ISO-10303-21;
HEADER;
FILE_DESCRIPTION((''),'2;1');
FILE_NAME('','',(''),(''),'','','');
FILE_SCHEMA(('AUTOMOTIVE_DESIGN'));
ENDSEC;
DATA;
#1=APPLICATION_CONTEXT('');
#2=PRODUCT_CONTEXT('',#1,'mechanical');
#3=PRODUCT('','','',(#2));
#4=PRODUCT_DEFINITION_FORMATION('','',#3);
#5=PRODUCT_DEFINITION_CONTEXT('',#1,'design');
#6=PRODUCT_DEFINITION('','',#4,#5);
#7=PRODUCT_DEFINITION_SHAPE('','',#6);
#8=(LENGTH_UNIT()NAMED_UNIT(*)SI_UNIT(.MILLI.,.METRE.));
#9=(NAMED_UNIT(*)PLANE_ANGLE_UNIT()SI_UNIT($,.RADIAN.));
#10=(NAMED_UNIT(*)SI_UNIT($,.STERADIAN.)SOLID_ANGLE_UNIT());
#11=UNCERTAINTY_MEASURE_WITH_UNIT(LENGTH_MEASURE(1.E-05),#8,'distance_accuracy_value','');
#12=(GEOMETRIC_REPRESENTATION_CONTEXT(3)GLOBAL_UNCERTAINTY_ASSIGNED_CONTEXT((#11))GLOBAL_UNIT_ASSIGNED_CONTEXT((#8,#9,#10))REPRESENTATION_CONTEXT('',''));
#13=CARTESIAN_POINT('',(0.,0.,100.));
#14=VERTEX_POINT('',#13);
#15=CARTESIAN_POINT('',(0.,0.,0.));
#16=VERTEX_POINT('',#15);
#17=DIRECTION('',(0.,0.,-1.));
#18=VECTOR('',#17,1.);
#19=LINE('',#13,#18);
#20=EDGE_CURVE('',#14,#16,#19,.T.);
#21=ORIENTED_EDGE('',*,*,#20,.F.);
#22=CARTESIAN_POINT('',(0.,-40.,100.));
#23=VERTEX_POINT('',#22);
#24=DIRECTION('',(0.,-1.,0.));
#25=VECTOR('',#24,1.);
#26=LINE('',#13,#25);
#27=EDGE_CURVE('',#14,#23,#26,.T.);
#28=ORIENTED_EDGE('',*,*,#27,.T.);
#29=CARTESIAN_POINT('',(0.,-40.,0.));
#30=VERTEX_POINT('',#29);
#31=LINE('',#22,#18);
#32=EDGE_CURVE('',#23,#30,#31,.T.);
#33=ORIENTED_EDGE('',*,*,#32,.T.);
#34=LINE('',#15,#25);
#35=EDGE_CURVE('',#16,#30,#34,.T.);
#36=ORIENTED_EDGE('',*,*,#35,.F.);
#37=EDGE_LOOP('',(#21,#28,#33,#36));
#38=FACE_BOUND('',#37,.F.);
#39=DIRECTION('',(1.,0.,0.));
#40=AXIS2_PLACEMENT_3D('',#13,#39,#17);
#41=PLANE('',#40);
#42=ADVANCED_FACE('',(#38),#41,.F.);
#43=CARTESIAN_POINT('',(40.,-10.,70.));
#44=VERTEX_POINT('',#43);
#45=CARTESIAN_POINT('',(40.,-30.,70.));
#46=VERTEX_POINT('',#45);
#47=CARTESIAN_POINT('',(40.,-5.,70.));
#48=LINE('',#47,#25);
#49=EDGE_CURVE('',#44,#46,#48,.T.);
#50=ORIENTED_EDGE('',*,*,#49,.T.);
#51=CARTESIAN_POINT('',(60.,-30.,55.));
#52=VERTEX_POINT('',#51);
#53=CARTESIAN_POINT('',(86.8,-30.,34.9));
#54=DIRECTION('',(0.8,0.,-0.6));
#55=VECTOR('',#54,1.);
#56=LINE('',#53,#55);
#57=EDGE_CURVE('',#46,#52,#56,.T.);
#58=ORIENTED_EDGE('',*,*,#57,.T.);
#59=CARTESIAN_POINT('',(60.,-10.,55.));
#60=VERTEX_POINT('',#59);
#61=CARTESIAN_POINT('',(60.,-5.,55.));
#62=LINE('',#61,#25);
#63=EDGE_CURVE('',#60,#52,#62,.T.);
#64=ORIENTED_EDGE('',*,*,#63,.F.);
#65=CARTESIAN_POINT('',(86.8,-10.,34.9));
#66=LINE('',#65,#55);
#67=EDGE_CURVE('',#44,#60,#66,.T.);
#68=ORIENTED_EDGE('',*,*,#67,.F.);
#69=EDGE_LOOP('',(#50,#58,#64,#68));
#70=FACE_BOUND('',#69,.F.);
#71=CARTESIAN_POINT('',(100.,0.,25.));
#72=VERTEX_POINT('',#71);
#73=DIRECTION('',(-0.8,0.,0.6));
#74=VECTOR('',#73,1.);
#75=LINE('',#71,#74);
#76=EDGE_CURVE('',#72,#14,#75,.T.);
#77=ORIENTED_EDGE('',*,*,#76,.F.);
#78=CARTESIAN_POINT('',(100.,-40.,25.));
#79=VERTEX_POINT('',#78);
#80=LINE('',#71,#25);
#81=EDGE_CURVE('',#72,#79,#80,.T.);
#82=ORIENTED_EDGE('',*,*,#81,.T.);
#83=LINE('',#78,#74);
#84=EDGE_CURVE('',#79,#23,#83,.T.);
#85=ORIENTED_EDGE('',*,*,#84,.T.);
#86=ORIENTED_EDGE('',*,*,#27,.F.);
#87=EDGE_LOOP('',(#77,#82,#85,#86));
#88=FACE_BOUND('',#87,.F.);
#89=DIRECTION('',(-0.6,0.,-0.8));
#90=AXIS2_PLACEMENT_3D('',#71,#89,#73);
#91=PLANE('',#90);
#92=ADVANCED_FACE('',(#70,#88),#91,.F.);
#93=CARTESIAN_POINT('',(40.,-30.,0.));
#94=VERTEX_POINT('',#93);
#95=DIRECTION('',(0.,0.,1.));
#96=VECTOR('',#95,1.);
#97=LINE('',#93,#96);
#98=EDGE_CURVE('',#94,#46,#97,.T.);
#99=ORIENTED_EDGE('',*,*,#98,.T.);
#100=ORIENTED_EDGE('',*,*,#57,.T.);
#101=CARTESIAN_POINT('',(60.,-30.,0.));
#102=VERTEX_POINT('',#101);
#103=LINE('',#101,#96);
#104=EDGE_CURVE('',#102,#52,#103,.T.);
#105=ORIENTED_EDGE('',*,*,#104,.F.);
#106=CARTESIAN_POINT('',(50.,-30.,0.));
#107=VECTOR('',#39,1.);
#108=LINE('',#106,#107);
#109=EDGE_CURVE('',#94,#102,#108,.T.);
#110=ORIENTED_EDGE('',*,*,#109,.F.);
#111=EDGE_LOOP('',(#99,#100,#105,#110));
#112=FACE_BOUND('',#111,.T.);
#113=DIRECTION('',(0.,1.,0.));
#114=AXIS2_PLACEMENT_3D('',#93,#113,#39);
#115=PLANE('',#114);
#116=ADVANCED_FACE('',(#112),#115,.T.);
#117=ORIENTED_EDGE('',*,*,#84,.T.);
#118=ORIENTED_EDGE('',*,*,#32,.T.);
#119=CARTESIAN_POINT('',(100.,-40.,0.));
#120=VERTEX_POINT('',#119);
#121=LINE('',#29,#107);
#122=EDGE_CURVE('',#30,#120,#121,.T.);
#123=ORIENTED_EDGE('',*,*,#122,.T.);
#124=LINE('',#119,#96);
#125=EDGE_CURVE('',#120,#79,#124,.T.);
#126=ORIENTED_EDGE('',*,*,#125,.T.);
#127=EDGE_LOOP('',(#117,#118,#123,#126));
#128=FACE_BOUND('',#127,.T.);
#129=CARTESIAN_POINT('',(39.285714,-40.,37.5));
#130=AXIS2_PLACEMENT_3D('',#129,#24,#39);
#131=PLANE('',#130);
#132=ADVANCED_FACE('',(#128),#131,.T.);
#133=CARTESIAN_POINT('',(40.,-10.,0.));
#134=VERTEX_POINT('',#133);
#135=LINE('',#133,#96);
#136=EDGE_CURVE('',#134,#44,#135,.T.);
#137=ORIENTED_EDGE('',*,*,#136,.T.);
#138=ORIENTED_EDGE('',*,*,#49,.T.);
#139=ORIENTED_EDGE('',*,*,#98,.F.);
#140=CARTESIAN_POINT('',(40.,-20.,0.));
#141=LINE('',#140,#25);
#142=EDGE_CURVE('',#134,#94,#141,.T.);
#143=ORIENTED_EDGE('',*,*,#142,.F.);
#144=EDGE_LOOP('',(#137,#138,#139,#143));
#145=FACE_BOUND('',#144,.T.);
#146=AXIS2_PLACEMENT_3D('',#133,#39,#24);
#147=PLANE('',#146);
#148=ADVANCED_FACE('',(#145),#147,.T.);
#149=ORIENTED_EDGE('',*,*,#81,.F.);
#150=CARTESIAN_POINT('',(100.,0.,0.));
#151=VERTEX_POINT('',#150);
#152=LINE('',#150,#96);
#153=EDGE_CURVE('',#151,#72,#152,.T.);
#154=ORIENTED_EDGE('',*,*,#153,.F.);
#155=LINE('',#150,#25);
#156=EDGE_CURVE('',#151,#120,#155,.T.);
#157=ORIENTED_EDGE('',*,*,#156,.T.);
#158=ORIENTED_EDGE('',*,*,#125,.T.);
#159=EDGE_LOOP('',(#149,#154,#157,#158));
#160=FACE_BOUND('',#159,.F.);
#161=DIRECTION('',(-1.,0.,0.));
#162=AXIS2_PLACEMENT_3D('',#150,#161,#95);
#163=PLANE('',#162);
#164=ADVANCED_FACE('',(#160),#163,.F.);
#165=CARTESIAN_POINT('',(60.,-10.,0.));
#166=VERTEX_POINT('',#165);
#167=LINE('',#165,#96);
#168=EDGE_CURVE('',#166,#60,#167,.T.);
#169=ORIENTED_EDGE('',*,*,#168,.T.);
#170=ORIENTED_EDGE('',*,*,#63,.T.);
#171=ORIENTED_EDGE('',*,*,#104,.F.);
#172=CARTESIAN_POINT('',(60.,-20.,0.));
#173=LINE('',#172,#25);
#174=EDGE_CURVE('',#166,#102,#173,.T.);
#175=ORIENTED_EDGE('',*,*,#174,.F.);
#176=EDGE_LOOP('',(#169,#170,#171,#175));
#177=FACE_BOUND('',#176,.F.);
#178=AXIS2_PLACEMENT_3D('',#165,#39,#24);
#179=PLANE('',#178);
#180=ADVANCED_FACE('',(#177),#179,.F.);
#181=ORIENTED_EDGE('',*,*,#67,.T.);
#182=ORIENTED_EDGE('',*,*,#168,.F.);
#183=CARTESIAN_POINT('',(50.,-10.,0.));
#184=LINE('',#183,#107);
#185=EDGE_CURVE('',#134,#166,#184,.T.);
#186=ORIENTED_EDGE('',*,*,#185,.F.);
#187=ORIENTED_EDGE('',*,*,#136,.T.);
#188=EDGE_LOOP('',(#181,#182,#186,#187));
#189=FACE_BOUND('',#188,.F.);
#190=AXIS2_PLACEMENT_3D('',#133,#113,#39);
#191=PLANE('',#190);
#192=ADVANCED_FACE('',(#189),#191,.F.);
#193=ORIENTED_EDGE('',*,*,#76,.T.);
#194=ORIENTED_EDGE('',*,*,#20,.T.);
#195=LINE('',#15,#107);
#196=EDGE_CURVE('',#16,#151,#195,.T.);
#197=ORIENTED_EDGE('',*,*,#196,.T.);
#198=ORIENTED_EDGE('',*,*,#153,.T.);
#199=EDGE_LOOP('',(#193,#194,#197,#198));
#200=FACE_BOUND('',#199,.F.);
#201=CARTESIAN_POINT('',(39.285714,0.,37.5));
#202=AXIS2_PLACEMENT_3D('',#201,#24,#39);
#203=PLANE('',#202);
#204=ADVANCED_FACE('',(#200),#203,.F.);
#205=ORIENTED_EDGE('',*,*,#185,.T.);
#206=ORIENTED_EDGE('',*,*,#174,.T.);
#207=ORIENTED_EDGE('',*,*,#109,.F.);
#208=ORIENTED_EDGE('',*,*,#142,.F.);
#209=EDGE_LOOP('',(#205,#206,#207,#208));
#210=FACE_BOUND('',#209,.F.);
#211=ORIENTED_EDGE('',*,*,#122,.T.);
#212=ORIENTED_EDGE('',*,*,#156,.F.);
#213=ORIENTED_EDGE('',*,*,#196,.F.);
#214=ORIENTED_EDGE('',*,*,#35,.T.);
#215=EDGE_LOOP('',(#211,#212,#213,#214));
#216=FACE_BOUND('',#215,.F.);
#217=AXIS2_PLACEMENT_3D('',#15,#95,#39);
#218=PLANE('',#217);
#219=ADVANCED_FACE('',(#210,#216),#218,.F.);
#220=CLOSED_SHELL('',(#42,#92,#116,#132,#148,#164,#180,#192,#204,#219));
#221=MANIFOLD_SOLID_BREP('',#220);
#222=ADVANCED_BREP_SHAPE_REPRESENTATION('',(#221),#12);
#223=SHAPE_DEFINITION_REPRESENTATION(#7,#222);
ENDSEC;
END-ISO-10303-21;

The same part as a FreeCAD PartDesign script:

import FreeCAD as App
import Part
import Sketcher

V = App.Vector


def add_polygon(sketch, points):
    """Adds a closed chain of lines whose ends are joined by coincident constraints."""
    first, n = sketch.GeometryCount, len(points)
    for a, b in zip(points, points[1:] + points[:1]):
        sketch.addGeometry(Part.LineSegment(App.Vector(*a, 0), App.Vector(*b, 0)), False)
    for i in range(n):
        sketch.addConstraint(Sketcher.Constraint("Coincident", first + i, 2, first + (i + 1) % n, 1))

doc = App.newDocument("Part")
body = doc.addObject("PartDesign::Body", "Body")

# Sketch on XZ plane
sketch1 = doc.addObject("Sketcher::SketchObject", "Sketch")
body.addObject(sketch1)
sketch1.AttachmentSupport = (doc.XZ_Plane, [""])
sketch1.MapMode = "FlatFace"
add_polygon(sketch1, [(0, 100), (0, 0), (100, 0), (100, 25)])  # lines 0-3
sketch1.addConstraint([
    Sketcher.Constraint("Vertical", 0),
    Sketcher.Constraint("Horizontal", 1),
    Sketcher.Constraint("Vertical", 2),
    Sketcher.Constraint("Coincident", 0, 2, -1, 1),
    Sketcher.Constraint("Equal", 1, 0),
    Sketcher.Constraint("DistanceX", 1, 1, 1, 2, 100.0),
    Sketcher.Constraint("DistanceY", 2, 1, 2, 2, 25.0),
])
pad1 = doc.addObject("PartDesign::Pad", "Pad")
body.addObject(pad1)
pad1.Profile = sketch1
pad1.Length = 40

# Sketch on XY plane
sketch2 = doc.addObject("Sketcher::SketchObject", "Sketch001")
body.addObject(sketch2)
sketch2.AttachmentSupport = (doc.XY_Plane, [""])
sketch2.MapMode = "FlatFace"
add_polygon(sketch2, [(40, -30), (40, -10), (60, -10), (60, -30)])  # lines 0-3
sketch2.addConstraint([
    Sketcher.Constraint("Vertical", 0),
    Sketcher.Constraint("Horizontal", 1),
    Sketcher.Constraint("Vertical", 2),
    Sketcher.Constraint("Horizontal", 3),
    Sketcher.Constraint("Equal", 3, 0),
    Sketcher.Constraint("DistanceX", 1, 1, 1, 2, 20.0),
    Sketcher.Constraint("DistanceX", -1, 1, 0, 2, 40.0),
    Sketcher.Constraint("DistanceY", 0, 2, -1, 1, 10.0),
])
pocket1 = doc.addObject("PartDesign::Pocket", "Pocket")
body.addObject(pocket1)
pocket1.Profile = sketch2
pocket1.Type = "ThroughAll"
pocket1.Reversed = True

doc.recompute()
